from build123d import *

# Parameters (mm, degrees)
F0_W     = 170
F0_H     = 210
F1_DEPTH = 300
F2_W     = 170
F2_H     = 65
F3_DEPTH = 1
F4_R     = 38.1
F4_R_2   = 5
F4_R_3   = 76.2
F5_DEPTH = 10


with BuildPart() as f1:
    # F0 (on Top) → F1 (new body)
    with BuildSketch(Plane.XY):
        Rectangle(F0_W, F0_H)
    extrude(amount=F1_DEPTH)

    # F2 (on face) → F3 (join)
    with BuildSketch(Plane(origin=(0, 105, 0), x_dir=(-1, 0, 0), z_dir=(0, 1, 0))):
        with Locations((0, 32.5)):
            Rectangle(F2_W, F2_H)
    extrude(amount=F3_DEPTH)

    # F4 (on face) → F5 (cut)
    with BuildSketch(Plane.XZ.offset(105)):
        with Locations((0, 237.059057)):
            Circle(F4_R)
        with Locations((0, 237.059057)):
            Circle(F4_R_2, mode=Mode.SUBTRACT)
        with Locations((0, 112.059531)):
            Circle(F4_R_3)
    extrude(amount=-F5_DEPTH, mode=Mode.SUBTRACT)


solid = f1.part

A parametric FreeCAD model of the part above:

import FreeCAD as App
import Part
import Sketcher
from FreeCAD import Vector

doc = App.newDocument("Part")
body = doc.addObject("PartDesign::Body", "Body")

# Sketch on XY plane
sketch1 = body.newObject("Sketcher::SketchObject", "Sketch")
sketch1.AttachmentSupport = (doc.getObject("XY_Plane"), [""])
sketch1.MapMode = "FlatFace"
sketch1.addGeometry(Part.LineSegment(Vector(-85, 105, 0), Vector(-85, -105, 0)), False)
sketch1.addGeometry(Part.LineSegment(Vector(-85, -105, 0), Vector(85, -105, 0)), False)
sketch1.addGeometry(Part.LineSegment(Vector(85, -105, 0), Vector(85, 105, 0)), False)
sketch1.addGeometry(Part.LineSegment(Vector(85, 105, 0), Vector(-85, 105, 0)), False)
sketch1.addConstraint(Sketcher.Constraint("Coincident", 0, 2, 1, 1))
sketch1.addConstraint(Sketcher.Constraint("Coincident", 1, 2, 2, 1))
sketch1.addConstraint(Sketcher.Constraint("Coincident", 2, 2, 3, 1))
sketch1.addConstraint(Sketcher.Constraint("Coincident", 3, 2, 0, 1))
sketch1.addConstraint(Sketcher.Constraint("Vertical", 0))
sketch1.addConstraint(Sketcher.Constraint("Horizontal", 1))
sketch1.addConstraint(Sketcher.Constraint("Vertical", 2))
sketch1.addConstraint(Sketcher.Constraint("Horizontal", 3))
sketch1.addConstraint(Sketcher.Constraint("Symmetric", 0, 2, 2, 2, -1, 1))
sketch1.addConstraint(Sketcher.Constraint("DistanceX", 1, 1, 1, 2, 170.0))
sketch1.addConstraint(Sketcher.Constraint("DistanceY", 0, 2, 0, 1, 210.0))
pad1 = body.newObject("PartDesign::Pad", "Pad")
pad1.Profile = sketch1
pad1.Length = 300

# Sketch on XZ plane
sketch2 = body.newObject("Sketcher::SketchObject", "Sketch001")
sketch2.AttachmentSupport = (doc.getObject("XZ_Plane"), [""])
sketch2.MapMode = "FlatFace"
sketch2.AttachmentOffset = App.Placement(Vector(0, 0, -105), App.Rotation())
sketch2.addGeometry(Part.LineSegment(Vector(85, 65, 0), Vector(85, 0, 0)), False)
sketch2.addGeometry(Part.LineSegment(Vector(85, 0, 0), Vector(-85, 0, 0)), False)
sketch2.addGeometry(Part.LineSegment(Vector(-85, 0, 0), Vector(-85, 65, 0)), False)
sketch2.addGeometry(Part.LineSegment(Vector(-85, 65, 0), Vector(85, 65, 0)), False)
sketch2.addConstraint(Sketcher.Constraint("Coincident", 0, 2, 1, 1))
sketch2.addConstraint(Sketcher.Constraint("Coincident", 1, 2, 2, 1))
sketch2.addConstraint(Sketcher.Constraint("Coincident", 2, 2, 3, 1))
sketch2.addConstraint(Sketcher.Constraint("Coincident", 3, 2, 0, 1))
sketch2.addConstraint(Sketcher.Constraint("Vertical", 0))
sketch2.addConstraint(Sketcher.Constraint("Horizontal", 1))
sketch2.addConstraint(Sketcher.Constraint("Vertical", 2))
sketch2.addConstraint(Sketcher.Constraint("Horizontal", 3))
sketch2.addConstraint(Sketcher.Constraint("Symmetric", 0, 2, 1, 2, -1, 1))
sketch2.addConstraint(Sketcher.Constraint("DistanceX", 1, 2, 1, 1, 170.0))
sketch2.addConstraint(Sketcher.Constraint("DistanceY", 0, 2, 0, 1, 65.0))
pad2 = body.newObject("PartDesign::Pad", "Pad001")
pad2.Profile = sketch2
pad2.Length = 1
pad2.Reversed = True

# Sketch on XZ plane
sketch3 = body.newObject("Sketcher::SketchObject", "Sketch002")
sketch3.AttachmentSupport = (doc.getObject("XZ_Plane"), [""])
sketch3.MapMode = "FlatFace"
sketch3.AttachmentOffset = App.Placement(Vector(0, 0, 105), App.Rotation())
sketch3.addGeometry(Part.Circle(Vector(0, 237, 0), Vector(0, 0, 1), 38), False)
sketch3.addGeometry(Part.Circle(Vector(0, 237, 0), Vector(0, 0, 1), 5), False)
sketch3.addGeometry(Part.Circle(Vector(0, 112, 0), Vector(0, 0, 1), 76), False)
sketch3.addConstraint(Sketcher.Constraint("Coincident", 1, 3, 0, 3))
sketch3.addConstraint(Sketcher.Constraint("PointOnObject", 0, 3, -2))
sketch3.addConstraint(Sketcher.Constraint("PointOnObject", 2, 3, -2))
sketch3.addConstraint(Sketcher.Constraint("Diameter", 1, 10.0))
sketch3.addConstraint(Sketcher.Constraint("Diameter", 0, 76.2))
sketch3.addConstraint(Sketcher.Constraint("Diameter", 2, 152.4))
sketch3.addConstraint(Sketcher.Constraint("DistanceY", -1, 1, 2, 3, 112.059531))
sketch3.addConstraint(Sketcher.Constraint("DistanceY", -1, 1, 0, 3, 237.059057))
pocket1 = body.newObject("PartDesign::Pocket", "Pocket")
pocket1.Profile = sketch3
pocket1.Length = 10

doc.recompute()
